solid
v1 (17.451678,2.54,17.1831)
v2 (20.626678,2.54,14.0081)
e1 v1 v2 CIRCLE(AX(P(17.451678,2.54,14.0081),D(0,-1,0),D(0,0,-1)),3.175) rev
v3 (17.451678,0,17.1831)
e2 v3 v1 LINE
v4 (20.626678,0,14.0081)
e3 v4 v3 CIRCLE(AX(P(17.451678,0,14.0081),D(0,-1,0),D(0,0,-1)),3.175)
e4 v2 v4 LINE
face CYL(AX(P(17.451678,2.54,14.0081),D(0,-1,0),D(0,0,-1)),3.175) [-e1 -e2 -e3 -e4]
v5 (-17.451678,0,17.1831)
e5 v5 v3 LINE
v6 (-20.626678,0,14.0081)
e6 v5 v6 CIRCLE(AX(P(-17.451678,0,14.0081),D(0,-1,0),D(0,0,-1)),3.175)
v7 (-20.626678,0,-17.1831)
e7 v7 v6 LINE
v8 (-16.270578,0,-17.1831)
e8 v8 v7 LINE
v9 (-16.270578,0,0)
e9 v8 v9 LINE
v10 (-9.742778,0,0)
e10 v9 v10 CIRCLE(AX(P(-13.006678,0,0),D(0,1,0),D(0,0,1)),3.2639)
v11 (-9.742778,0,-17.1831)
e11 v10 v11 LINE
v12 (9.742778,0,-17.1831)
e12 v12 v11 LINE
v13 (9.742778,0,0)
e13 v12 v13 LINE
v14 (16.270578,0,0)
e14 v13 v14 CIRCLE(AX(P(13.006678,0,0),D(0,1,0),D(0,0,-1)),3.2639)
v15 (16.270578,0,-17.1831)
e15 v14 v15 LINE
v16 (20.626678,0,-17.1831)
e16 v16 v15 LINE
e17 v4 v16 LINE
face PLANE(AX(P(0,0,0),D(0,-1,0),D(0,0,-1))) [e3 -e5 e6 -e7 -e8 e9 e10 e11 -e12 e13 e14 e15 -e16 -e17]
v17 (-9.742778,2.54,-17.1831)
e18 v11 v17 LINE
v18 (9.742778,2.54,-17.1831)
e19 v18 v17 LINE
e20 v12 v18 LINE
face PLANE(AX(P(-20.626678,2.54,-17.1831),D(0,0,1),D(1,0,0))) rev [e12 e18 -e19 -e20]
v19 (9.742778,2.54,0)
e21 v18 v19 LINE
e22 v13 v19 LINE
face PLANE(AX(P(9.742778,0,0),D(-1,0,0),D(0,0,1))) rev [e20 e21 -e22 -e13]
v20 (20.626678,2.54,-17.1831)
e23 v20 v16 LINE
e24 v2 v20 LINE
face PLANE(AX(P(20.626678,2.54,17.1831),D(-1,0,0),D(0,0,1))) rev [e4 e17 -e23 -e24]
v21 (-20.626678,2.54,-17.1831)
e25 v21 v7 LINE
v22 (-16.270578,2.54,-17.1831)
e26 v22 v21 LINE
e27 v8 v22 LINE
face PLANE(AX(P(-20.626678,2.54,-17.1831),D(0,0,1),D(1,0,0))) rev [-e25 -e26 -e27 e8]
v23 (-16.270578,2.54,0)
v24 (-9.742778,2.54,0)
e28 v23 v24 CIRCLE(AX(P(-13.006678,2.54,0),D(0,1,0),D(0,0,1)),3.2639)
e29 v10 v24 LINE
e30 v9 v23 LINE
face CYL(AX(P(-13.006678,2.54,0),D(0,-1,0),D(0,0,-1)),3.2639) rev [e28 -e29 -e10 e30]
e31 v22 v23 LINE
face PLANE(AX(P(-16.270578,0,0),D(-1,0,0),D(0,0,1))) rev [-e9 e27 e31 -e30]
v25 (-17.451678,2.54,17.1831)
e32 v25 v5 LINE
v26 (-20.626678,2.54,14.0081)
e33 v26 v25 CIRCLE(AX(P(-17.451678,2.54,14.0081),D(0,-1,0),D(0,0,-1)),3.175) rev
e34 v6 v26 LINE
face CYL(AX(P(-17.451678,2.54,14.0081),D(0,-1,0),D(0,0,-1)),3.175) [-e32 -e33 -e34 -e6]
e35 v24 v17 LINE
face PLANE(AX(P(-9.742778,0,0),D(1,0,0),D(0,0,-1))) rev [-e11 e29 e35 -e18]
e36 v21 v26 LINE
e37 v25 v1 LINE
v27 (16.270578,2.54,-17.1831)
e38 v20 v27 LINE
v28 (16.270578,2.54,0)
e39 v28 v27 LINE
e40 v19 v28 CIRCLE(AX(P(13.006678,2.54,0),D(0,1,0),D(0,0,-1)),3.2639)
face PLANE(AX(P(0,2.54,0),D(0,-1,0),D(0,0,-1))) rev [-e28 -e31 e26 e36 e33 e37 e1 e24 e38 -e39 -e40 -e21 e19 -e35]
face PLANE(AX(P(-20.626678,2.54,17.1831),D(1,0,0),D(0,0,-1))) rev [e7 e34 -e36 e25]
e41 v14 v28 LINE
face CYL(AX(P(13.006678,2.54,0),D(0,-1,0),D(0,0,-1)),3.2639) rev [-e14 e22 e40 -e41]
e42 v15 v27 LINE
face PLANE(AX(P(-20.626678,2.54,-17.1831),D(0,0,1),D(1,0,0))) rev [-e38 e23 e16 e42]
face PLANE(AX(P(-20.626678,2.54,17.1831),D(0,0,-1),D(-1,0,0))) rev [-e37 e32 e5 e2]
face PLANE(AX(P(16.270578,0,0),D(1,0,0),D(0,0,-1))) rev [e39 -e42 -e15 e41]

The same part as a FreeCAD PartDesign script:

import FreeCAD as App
import Part
import Sketcher

V = App.Vector
Q = App.Units.Quantity


def edges_at(feature, points):
    """Names of the edges that pass closest to the given points."""
    edges = feature.Shape.Edges
    near = lambda p: min(range(len(edges)), key=lambda i: edges[i].distToShape(Part.Vertex(*p))[0])
    return sorted({f"Edge{near(p) + 1}" for p in points})

doc = App.newDocument("Part")
params = doc.addObject("Spreadsheet::Sheet", "Params")
for row, (alias, value) in enumerate([
    ("sketch1_diameter", "0.257 in"),
    ("sketch1_height", "1.353 in"),
    ("pad1_length", "0.1 in"),
    ("fillet_radius", "0.125 in"),
    ("sketch2_width", "0.257 in"),
], start=1):
    params.set(f"A{row}", alias)
    params.set(f"B{row}", "=" + value)
    params.setAlias(f"B{row}", alias)

body = doc.addObject("PartDesign::Body", "Body")

# Sketch on XZ plane
sketch1 = body.newObject("Sketcher::SketchObject", "Sketch")
sketch1.AttachmentSupport = (doc.getObject("XZ_Plane"), [""])
sketch1.MapMode = "FlatFace"
sketch1.addGeometry(Part.LineSegment(V(-20.626678, -17.1831, 0), V(-20.626678, 17.1831, 0)), False)
sketch1.addGeometry(Part.LineSegment(V(-20.626678, 17.1831, 0), V(20.626678, 17.1831, 0)), False)
sketch1.addGeometry(Part.LineSegment(V(20.626678, 17.1831, 0), V(20.626678, -17.1831, 0)), False)
sketch1.addGeometry(Part.LineSegment(V(20.626678, -17.1831, 0), V(-20.626678, -17.1831, 0)), False)
sketch1.addGeometry(Part.Circle(V(-13.006678, 0, 0), V(0, 0, 1), 3.2639), False)
sketch1.addGeometry(Part.Circle(V(13.006678, 0, 0), V(0, 0, 1), 3.2639), False)
sketch1.addConstraint(Sketcher.Constraint("Coincident", 0, 2, 1, 1))
sketch1.addConstraint(Sketcher.Constraint("Coincident", 1, 2, 2, 1))
sketch1.addConstraint(Sketcher.Constraint("Coincident", 2, 2, 3, 1))
sketch1.addConstraint(Sketcher.Constraint("Coincident", 3, 2, 0, 1))
sketch1.addConstraint(Sketcher.Constraint("Vertical", 0))
sketch1.addConstraint(Sketcher.Constraint("Horizontal", 1))
sketch1.addConstraint(Sketcher.Constraint("Vertical", 2))
sketch1.addConstraint(Sketcher.Constraint("Horizontal", 3))
sketch1.addConstraint(Sketcher.Constraint("Equal", 4, 5))
sketch1.addConstraint(Sketcher.Constraint("Symmetric", 4, 3, 5, 3, -1, 1))
sketch1.addConstraint(Sketcher.Constraint("Symmetric", 0, 2, 2, 2, -1, 1))
sketch1.addConstraint(Sketcher.Constraint("PointOnObject", 4, 3, -1))
sketch1.addConstraint(Sketcher.Constraint("Diameter", 4, Q("0.257 in")))
sketch1.addConstraint(Sketcher.Constraint("DistanceX", 0, 2, 4, 3, Q("0.3 in")))
sketch1.addConstraint(Sketcher.Constraint("DistanceY", 0, 1, 0, 2, Q("1.353 in")))
sketch1.addConstraint(Sketcher.Constraint("DistanceX", 1, 1, 1, 2, 41.253357))
sketch1.setExpression("Constraints[12]", "Params.sketch1_diameter")
sketch1.setExpression("Constraints[14]", "Params.sketch1_height")
pad1 = body.newObject("PartDesign::Pad", "Pad")
pad1.Profile = sketch1
pad1.setExpression("Length", "Params.pad1_length")
pad1.Reversed = True
doc.recompute()

fillet = body.newObject("PartDesign::Fillet", "Fillet")
fillet.Base = (pad1, edges_at(pad1, [(20.627, 1.27, 17.183), (-20.627, 1.27, 17.183)]))
fillet.setExpression("Radius", "Params.fillet_radius")

# Sketch on XZ plane
sketch2 = body.newObject("Sketcher::SketchObject", "Sketch001")
sketch2.AttachmentSupport = (doc.getObject("XZ_Plane"), [""])
sketch2.MapMode = "FlatFace"
sketch2.AttachmentOffset = App.Placement(V(0, 0, -0.1 * 25.4), App.Rotation())
sketch2.addGeometry(Part.LineSegment(V(-16.270578, -17.1831, 0), V(-16.270578, 0, 0)), False)
sketch2.addGeometry(Part.LineSegment(V(-16.270578, 0, 0), V(-9.742778, 0, 0)), False)
sketch2.addGeometry(Part.LineSegment(V(-9.742778, 0, 0), V(-9.742778, -17.1831, 0)), False)
sketch2.addGeometry(Part.LineSegment(V(-9.742778, -17.1831, 0), V(-16.270578, -17.1831, 0)), False)
sketch2.addGeometry(Part.LineSegment(V(9.742778, -17.1831, 0), V(9.742778, 0, 0)), False)
sketch2.addGeometry(Part.LineSegment(V(9.742778, 0, 0), V(16.270578, 0, 0)), False)
sketch2.addGeometry(Part.LineSegment(V(16.270578, 0, 0), V(16.270578, -17.1831, 0)), False)
sketch2.addGeometry(Part.LineSegment(V(16.270578, -17.1831, 0), V(9.742778, -17.1831, 0)), False)
sketch2.addConstraint(Sketcher.Constraint("Coincident", 0, 2, 1, 1))
sketch2.addConstraint(Sketcher.Constraint("Coincident", 1, 2, 2, 1))
sketch2.addConstraint(Sketcher.Constraint("Coincident", 2, 2, 3, 1))
sketch2.addConstraint(Sketcher.Constraint("Coincident", 3, 2, 0, 1))
sketch2.addConstraint(Sketcher.Constraint("Coincident", 4, 2, 5, 1))
sketch2.addConstraint(Sketcher.Constraint("Coincident", 5, 2, 6, 1))
sketch2.addConstraint(Sketcher.Constraint("Coincident", 6, 2, 7, 1))
sketch2.addConstraint(Sketcher.Constraint("Coincident", 7, 2, 4, 1))
sketch2.addConstraint(Sketcher.Constraint("Vertical", 0))
sketch2.addConstraint(Sketcher.Constraint("Horizontal", 1))
sketch2.addConstraint(Sketcher.Constraint("Vertical", 2))
sketch2.addConstraint(Sketcher.Constraint("Horizontal", 3))
sketch2.addConstraint(Sketcher.Constraint("Vertical", 4))
sketch2.addConstraint(Sketcher.Constraint("Horizontal", 5))
sketch2.addConstraint(Sketcher.Constraint("Vertical", 6))
sketch2.addConstraint(Sketcher.Constraint("Horizontal", 7))
sketch2.addConstraint(Sketcher.Constraint("Symmetric", 1, 2, 4, 2, -1, 1))
sketch2.addConstraint(Sketcher.Constraint("Symmetric", 0, 2, 5, 2, -2))
sketch2.addConstraint(Sketcher.Constraint("Horizontal", 3, 2, 6, 2))
sketch2.addConstraint(Sketcher.Constraint("DistanceX", 1, 1, 1, 2, Q("0.257 in")))
sketch2.addConstraint(Sketcher.Constraint("DistanceY", 0, 1, 0, 2, Q("0.6765 in")))
sketch2.addConstraint(Sketcher.Constraint("DistanceX", 0, 2, -1, 1, 16.270578))
sketch2.setExpression("Constraints[19]", "Params.sketch2_width")
pocket1 = body.newObject("PartDesign::Pocket", "Pocket")
pocket1.Profile = sketch2
pocket1.Type = "ThroughAll"
pocket1.Reversed = True

doc.recompute()
